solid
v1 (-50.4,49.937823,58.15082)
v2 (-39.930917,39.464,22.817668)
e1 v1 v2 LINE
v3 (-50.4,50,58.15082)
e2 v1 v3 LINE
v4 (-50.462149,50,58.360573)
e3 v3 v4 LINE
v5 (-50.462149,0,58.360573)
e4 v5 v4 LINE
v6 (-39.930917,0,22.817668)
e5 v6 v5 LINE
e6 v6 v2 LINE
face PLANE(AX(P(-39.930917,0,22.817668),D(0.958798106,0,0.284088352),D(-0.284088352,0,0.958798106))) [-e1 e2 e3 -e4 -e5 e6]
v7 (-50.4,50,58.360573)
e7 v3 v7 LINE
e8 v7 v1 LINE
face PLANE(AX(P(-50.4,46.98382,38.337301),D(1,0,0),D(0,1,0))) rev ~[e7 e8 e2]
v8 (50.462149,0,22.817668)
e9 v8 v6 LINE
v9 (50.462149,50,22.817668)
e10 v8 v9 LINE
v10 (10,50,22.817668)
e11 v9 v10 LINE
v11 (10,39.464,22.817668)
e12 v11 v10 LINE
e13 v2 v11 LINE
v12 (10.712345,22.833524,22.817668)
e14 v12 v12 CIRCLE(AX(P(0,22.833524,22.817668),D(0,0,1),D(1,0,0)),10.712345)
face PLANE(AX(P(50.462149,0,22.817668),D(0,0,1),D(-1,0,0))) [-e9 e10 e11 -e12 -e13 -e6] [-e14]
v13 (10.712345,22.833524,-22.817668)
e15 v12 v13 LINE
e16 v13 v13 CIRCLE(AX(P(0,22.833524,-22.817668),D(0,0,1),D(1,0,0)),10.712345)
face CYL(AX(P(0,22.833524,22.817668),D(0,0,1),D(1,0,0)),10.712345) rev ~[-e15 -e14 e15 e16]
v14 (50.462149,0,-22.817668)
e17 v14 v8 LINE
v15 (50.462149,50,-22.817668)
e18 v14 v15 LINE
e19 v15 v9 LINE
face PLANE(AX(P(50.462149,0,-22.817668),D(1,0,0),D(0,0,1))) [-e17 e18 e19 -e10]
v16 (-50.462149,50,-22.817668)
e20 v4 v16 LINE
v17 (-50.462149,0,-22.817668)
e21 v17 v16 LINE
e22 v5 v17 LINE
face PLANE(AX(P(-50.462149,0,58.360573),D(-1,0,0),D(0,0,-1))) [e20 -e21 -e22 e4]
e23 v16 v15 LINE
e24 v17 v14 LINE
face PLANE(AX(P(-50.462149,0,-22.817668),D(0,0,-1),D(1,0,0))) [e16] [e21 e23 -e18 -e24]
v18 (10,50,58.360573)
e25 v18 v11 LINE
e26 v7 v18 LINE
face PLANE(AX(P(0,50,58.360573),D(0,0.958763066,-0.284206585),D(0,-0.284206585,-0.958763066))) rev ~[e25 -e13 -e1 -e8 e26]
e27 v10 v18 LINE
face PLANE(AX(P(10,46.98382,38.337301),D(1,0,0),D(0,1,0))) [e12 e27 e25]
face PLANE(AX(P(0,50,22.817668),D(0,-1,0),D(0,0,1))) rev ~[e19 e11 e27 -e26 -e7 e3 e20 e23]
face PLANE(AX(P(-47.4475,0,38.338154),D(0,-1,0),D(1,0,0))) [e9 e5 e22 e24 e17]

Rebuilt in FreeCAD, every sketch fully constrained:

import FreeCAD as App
import Part
import Sketcher

V = App.Vector


def add_polygon(sketch, points):
    """Adds a closed chain of lines whose ends are joined by coincident constraints."""
    first, n = sketch.GeometryCount, len(points)
    for a, b in zip(points, points[1:] + points[:1]):
        sketch.addGeometry(Part.LineSegment(App.Vector(*a, 0), App.Vector(*b, 0)), False)
    for i in range(n):
        sketch.addConstraint(Sketcher.Constraint("Coincident", first + i, 2, first + (i + 1) % n, 1))

doc = App.newDocument("Part")
body = doc.addObject("PartDesign::Body", "Body")

sketch1 = doc.addObject("Sketcher::SketchObject", "Sketch")
body.addObject(sketch1)
sketch1.AttachmentSupport = (doc.XZ_Plane, [""])
sketch1.MapMode = "FlatFace"
add_polygon(sketch1, [(-50, 58), (-50, -23), (50, -23), (50, 23), (-40, 23)])
sketch1.addConstraint([
    Sketcher.Constraint("Vertical", 0),
    Sketcher.Constraint("Horizontal", 1),
    Sketcher.Constraint("Vertical", 2),
    Sketcher.Constraint("Horizontal", 3),
    Sketcher.Constraint("Symmetric", 0, 2, 2, 2, -1, 1),
    Sketcher.Constraint("DistanceY", 0, 2, 0, 1, 81.178241),
    Sketcher.Constraint("Distance", 4, 37.07027),
    Sketcher.Constraint("DistanceX", 1, 1, 1, 2, 100.924298),
    Sketcher.Constraint("DistanceX", 3, 2, 3, 1, 90.393066),
])
pad1 = doc.addObject("PartDesign::Pad", "Pad")
body.addObject(pad1)
pad1.Profile = sketch1
pad1.Length = 50
pad1.Reversed = True

sketch2 = doc.addObject("Sketcher::SketchObject", "Sketch001")
body.addObject(sketch2)
sketch2.AttachmentSupport = (doc.YZ_Plane, [""])
sketch2.MapMode = "FlatFace"
add_polygon(sketch2, [(39, 23), (50, 23), (50, 58)])
sketch2.addConstraint([
    Sketcher.Constraint("Horizontal", 0),
    Sketcher.Constraint("Vertical", 1),
    Sketcher.Constraint("DistanceX", -1, 1, 0, 2, 50.0),
    Sketcher.Constraint("DistanceX", 0, 1, 0, 2, 10.536),
    Sketcher.Constraint("DistanceY", 1, 1, 1, 2, 35.542905),
    Sketcher.Constraint("DistanceY", -1, 1, 0, 2, 22.817668),
])
pad2 = doc.addObject("PartDesign::Pad", "Pad001")
body.addObject(pad2)
pad2.Profile = sketch2
pad2.Length = 50.4
pad2.Reversed = True

sketch3 = doc.addObject("Sketcher::SketchObject", "Sketch002")
body.addObject(sketch3)
sketch3.AttachmentSupport = (doc.XY_Plane, [""])
sketch3.MapMode = "FlatFace"
sketch3.AttachmentOffset = App.Placement(V(0, 0, 22.817668), App.Rotation())
sketch3.addGeometry(Part.Circle(V(0, 23, 0), V(0, 0, 1), 11), False)
sketch3.addConstraint([
    Sketcher.Constraint("PointOnObject", 0, 3, -2),
    Sketcher.Constraint("Diameter", 0, 21.42469),
    Sketcher.Constraint("DistanceY", -1, 1, 0, 3, 22.833524),
])
pocket1 = doc.addObject("PartDesign::Pocket", "Pocket")
body.addObject(pocket1)
pocket1.Profile = sketch3
pocket1.Length = 50

sketch4 = doc.addObject("Sketcher::SketchObject", "Sketch003")
body.addObject(sketch4)
sketch4.AttachmentSupport = (doc.YZ_Plane, [""])
sketch4.MapMode = "FlatFace"
add_polygon(sketch4, [(39, 23), (50, 23), (50, 58)])
sketch4.addConstraint([
    Sketcher.Constraint("Horizontal", 0),
    Sketcher.Constraint("Vertical", 1),
    Sketcher.Constraint("DistanceX", -1, 1, 0, 2, 50.0),
    Sketcher.Constraint("DistanceX", 0, 1, 0, 2, 10.536),
    Sketcher.Constraint("DistanceY", 1, 1, 1, 2, 35.542905),
    Sketcher.Constraint("DistanceY", -1, 1, 0, 2, 22.817668),
])
pad3 = doc.addObject("PartDesign::Pad", "Pad002")
body.addObject(pad3)
pad3.Profile = sketch4
pad3.Length = 10

doc.recompute()
